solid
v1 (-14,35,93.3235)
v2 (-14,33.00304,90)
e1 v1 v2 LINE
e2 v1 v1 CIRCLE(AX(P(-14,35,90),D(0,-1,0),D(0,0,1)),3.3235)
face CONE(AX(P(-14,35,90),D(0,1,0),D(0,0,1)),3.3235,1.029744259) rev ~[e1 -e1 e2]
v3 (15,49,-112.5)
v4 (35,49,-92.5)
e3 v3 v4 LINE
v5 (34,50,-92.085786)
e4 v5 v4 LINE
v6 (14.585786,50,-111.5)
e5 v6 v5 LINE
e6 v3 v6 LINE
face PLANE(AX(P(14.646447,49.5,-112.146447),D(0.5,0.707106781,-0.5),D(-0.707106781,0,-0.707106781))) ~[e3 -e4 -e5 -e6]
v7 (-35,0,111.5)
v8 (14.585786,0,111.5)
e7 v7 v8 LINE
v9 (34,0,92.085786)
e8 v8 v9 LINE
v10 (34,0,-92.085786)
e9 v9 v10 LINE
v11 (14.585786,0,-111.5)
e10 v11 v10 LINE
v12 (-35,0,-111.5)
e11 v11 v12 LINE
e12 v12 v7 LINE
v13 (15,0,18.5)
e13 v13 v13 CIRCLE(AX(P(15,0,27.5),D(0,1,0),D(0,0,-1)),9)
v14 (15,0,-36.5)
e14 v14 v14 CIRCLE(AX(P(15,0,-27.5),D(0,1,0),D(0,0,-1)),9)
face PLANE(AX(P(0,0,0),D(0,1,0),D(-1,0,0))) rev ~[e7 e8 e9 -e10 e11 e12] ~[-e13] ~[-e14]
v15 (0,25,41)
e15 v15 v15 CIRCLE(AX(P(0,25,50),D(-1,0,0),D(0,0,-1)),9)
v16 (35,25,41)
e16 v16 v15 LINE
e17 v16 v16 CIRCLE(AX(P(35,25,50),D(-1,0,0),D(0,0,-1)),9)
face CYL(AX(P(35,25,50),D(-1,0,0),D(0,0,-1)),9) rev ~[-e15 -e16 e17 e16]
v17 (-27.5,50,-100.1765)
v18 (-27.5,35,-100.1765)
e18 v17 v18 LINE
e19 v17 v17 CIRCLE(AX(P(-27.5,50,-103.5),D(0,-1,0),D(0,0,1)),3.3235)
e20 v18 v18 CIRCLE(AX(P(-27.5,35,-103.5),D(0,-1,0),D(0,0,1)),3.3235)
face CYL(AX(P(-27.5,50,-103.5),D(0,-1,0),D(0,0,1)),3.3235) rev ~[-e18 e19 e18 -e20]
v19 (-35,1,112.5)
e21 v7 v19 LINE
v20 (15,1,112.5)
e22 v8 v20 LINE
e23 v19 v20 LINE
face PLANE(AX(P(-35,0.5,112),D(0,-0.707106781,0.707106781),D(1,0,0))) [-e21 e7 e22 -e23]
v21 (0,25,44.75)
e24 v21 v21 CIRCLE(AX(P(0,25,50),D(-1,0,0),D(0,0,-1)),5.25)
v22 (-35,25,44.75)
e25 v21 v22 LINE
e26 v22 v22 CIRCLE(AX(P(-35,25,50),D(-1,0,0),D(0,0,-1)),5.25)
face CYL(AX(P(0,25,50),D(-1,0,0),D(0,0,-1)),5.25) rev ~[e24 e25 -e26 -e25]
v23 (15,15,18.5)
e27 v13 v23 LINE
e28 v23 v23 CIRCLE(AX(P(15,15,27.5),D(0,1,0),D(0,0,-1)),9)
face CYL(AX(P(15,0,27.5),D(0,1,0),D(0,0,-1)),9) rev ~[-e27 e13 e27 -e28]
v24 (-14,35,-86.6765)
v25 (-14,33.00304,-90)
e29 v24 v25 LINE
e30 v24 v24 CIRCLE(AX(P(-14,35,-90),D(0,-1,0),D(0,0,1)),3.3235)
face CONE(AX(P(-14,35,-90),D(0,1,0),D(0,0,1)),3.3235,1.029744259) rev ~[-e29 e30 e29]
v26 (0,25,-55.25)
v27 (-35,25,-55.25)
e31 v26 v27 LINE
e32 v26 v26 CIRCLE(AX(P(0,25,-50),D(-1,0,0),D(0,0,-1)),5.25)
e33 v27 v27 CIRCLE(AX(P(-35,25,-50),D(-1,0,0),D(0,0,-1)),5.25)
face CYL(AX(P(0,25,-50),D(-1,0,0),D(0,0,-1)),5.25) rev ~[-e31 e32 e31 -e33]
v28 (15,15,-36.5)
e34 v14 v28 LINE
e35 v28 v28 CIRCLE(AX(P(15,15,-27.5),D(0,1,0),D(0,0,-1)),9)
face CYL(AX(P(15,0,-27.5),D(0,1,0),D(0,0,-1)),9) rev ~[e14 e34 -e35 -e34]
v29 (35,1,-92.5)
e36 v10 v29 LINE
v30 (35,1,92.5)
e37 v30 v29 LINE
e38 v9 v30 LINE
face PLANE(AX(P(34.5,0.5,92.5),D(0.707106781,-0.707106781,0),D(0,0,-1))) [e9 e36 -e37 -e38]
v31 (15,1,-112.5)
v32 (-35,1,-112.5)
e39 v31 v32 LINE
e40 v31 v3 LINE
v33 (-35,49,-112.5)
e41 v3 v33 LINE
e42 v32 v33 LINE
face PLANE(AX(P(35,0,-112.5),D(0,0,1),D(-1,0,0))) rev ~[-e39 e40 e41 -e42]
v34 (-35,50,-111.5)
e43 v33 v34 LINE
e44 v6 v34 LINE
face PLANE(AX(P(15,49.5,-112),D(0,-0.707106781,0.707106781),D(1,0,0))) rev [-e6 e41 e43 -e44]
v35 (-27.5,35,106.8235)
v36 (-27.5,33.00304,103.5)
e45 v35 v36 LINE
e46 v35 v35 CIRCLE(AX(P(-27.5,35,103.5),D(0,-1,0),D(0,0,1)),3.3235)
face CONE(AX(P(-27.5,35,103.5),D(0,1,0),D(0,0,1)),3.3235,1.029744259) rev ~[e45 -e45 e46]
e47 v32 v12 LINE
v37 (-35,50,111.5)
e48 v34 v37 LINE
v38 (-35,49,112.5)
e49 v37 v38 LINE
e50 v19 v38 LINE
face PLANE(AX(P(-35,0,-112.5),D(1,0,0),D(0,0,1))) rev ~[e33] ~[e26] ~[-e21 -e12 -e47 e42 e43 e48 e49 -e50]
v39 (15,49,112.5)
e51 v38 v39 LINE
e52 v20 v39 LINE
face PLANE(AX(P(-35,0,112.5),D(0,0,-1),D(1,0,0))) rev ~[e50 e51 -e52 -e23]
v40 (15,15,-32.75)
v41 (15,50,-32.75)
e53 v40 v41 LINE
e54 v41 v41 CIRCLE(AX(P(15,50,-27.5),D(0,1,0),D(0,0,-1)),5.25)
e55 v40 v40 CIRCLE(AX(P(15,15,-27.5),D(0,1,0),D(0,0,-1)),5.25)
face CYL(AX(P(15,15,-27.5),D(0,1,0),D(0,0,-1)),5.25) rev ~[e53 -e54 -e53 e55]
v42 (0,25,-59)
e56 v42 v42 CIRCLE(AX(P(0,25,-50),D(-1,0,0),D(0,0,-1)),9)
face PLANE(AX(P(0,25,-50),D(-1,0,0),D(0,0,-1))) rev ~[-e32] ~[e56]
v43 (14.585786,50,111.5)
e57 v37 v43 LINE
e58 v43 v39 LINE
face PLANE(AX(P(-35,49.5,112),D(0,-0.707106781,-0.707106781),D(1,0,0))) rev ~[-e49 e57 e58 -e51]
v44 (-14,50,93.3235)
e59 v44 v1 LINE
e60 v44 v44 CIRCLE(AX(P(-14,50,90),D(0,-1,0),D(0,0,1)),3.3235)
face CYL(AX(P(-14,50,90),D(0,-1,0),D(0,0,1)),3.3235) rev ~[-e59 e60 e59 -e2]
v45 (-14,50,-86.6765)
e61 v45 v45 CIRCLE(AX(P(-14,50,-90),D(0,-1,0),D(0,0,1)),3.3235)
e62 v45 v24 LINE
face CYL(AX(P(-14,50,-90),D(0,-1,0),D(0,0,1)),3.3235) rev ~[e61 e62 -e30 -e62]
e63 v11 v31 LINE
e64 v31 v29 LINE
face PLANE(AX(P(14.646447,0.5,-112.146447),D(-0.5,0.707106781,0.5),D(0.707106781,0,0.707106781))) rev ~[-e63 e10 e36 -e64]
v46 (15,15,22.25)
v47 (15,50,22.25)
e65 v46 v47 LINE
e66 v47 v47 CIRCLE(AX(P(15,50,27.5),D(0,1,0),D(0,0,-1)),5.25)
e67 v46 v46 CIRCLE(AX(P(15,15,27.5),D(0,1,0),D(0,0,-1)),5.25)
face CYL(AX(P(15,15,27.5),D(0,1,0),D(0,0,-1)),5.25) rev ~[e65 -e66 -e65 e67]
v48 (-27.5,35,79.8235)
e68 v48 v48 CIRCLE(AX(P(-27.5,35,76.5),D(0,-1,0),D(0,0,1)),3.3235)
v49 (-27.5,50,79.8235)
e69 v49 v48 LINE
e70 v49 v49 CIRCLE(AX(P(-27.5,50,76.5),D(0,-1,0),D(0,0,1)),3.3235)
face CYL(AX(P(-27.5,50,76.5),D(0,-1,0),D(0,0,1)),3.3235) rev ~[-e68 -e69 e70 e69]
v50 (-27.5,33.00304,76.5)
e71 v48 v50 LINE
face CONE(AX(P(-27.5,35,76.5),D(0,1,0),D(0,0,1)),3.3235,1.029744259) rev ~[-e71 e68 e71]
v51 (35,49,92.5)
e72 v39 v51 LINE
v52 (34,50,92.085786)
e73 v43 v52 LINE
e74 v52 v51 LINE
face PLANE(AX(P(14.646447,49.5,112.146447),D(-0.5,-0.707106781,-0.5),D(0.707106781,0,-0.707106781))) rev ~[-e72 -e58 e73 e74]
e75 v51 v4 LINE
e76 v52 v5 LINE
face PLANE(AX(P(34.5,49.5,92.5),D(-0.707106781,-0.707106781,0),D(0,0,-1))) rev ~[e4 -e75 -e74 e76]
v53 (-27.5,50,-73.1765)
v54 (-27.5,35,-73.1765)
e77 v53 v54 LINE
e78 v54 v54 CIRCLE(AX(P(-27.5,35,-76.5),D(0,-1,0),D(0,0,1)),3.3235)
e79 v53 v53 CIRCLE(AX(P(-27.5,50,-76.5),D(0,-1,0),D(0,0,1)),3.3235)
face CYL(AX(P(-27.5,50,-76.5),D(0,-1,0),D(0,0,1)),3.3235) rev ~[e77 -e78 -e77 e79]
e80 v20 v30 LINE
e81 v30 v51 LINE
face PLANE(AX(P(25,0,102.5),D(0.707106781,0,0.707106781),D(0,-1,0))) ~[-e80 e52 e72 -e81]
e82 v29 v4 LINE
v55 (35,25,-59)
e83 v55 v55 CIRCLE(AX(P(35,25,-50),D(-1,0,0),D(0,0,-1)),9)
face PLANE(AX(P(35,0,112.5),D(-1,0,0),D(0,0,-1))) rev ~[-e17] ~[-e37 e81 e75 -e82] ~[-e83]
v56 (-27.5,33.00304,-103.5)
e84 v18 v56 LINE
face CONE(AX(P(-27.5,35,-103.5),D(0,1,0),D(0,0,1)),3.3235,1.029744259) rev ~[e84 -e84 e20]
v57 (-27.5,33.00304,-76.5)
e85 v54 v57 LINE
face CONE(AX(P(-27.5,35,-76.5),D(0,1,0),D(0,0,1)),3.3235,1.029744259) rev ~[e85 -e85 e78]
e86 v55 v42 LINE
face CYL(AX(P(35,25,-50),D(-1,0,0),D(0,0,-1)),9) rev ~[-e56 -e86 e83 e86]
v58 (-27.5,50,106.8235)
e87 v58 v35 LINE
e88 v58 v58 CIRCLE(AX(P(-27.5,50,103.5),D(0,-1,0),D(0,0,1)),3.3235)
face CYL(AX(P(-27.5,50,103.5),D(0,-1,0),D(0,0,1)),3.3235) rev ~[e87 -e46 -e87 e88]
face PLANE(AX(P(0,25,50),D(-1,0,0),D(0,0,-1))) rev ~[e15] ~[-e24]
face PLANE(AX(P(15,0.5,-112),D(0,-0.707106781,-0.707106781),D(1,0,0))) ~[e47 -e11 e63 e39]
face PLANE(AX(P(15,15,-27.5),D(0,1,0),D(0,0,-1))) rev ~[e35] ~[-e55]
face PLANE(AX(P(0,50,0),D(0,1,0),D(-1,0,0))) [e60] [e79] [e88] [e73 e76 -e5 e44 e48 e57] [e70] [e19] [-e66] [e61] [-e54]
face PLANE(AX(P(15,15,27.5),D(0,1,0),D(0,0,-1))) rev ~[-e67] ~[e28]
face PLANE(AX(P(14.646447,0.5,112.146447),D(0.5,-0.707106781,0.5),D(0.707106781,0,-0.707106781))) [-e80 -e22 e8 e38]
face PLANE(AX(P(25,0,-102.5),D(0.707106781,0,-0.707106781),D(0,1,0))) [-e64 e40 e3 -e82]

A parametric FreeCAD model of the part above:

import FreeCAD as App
import Part
import Sketcher

V = App.Vector


def edges_at(feature, points):
    """Names of the edges that pass closest to the given points."""
    edges = feature.Shape.Edges
    near = lambda p: min(range(len(edges)), key=lambda i: edges[i].distToShape(Part.Vertex(*p))[0])
    return sorted({f"Edge{near(p) + 1}" for p in points})

doc = App.newDocument("Part")
body = doc.addObject("PartDesign::Body", "Body")

sketch1 = body.newObject("Sketcher::SketchObject", "Sketch")
sketch1.AttachmentSupport = (doc.getObject("XZ_Plane"), [""])
sketch1.MapMode = "FlatFace"
sketch1.addGeometry([
    Part.LineSegment(V(-35, -112, 0), V(-35, 112, 0)),
    Part.LineSegment(V(-35, 112, 0), V(35, 112, 0)),
    Part.LineSegment(V(35, 112, 0), V(35, -112, 0)),
    Part.LineSegment(V(35, -112, 0), V(-35, -112, 0)),
], False)
sketch1.addConstraint([
    Sketcher.Constraint("Coincident", 0, 2, 1, 1),
    Sketcher.Constraint("Coincident", 1, 2, 2, 1),
    Sketcher.Constraint("Coincident", 2, 2, 3, 1),
    Sketcher.Constraint("Coincident", 3, 2, 0, 1),
    Sketcher.Constraint("Vertical", 0),
    Sketcher.Constraint("Horizontal", 1),
    Sketcher.Constraint("Vertical", 2),
    Sketcher.Constraint("Horizontal", 3),
    Sketcher.Constraint("Symmetric", 0, 2, 2, 2, -1, 1),
    Sketcher.Constraint("DistanceX", 1, 1, 1, 2, 70.0),
    Sketcher.Constraint("DistanceY", 0, 1, 0, 2, 225.0),
])
pad1 = body.newObject("PartDesign::Pad", "Pad")
pad1.Profile = sketch1
pad1.Length = 50
pad1.Reversed = True

sketch2 = body.newObject("Sketcher::SketchObject", "Sketch001")
sketch2.AttachmentSupport = (doc.getObject("YZ_Plane"), [""])
sketch2.MapMode = "FlatFace"
sketch2.AttachmentOffset = App.Placement(V(0, 0, 35), App.Rotation())
sketch2.addGeometry([
    Part.Circle(V(25, 50, 0), V(0, 0, 1), 5),
    Part.Circle(V(25, -50, 0), V(0, 0, 1), 5),
], False)
sketch2.addConstraint([
    Sketcher.Constraint("Equal", 0, 1),
    Sketcher.Constraint("Symmetric", 0, 3, 1, 3, -1),
    Sketcher.Constraint("Diameter", 0, 10.5),
    Sketcher.Constraint("DistanceX", -1, 1, 0, 3, 25.0),
    Sketcher.Constraint("DistanceY", -1, 1, 0, 3, 50.0),
])
doc.recompute()
hole = body.newObject("PartDesign::Hole", "Hole")
hole.Profile = sketch2
hole.ThreadType = "None"
hole.Diameter = 10.5
hole.DepthType = "ThroughAll"
hole.HoleCutType = "Counterbore"
hole.HoleCutDiameter = 18
hole.HoleCutDepth = 35

sketch3 = body.newObject("Sketcher::SketchObject", "Sketch002")
sketch3.AttachmentSupport = (doc.getObject("XZ_Plane"), [""])
sketch3.MapMode = "FlatFace"
sketch3.addGeometry([
    Part.Circle(V(15, 28, 0), V(0, 0, 1), 5),
    Part.Circle(V(15, -28, 0), V(0, 0, 1), 5),
], False)
sketch3.addConstraint([
    Sketcher.Constraint("Equal", 0, 1),
    Sketcher.Constraint("Symmetric", 0, 3, 1, 3, -1),
    Sketcher.Constraint("Diameter", 0, 10.5),
    Sketcher.Constraint("DistanceX", -1, 1, 0, 3, 15.0),
    Sketcher.Constraint("DistanceY", 1, 3, 0, 3, 55.0),
])
doc.recompute()
hole2 = body.newObject("PartDesign::Hole", "Hole001")
hole2.Profile = sketch3
hole2.ThreadType = "None"
hole2.Diameter = 10.5
hole2.DepthType = "ThroughAll"
hole2.HoleCutType = "Counterbore"
hole2.HoleCutDiameter = 18
hole2.HoleCutDepth = 15
doc.recompute()

chamfer = body.newObject("PartDesign::Chamfer", "Chamfer")
chamfer.Base = (hole2, edges_at(hole2, [(35, 25, 112.5), (35, 25, -112.5)]))
chamfer.Size = 20

sketch4 = body.newObject("Sketcher::SketchObject", "Sketch003")
sketch4.AttachmentSupport = (doc.getObject("XZ_Plane"), [""])
sketch4.MapMode = "FlatFace"
sketch4.AttachmentOffset = App.Placement(V(0, 0, -50), App.Rotation())
sketch4.addGeometry([
    Part.Circle(V(-27.5, 103.5, 0), V(0, 0, 1), 3.3),
    Part.Circle(V(-14, 90, 0), V(0, 0, 1), 3.3),
    Part.Circle(V(-27.5, 76.5, 0), V(0, 0, 1), 3.3),
    Part.Circle(V(-27.5, -76.5, 0), V(0, 0, 1), 3.3),
    Part.Circle(V(-14, -90, 0), V(0, 0, 1), 3.3),
    Part.Circle(V(-27.5, -103.5, 0), V(0, 0, 1), 3.3),
], False)
sketch4.addConstraint([
    Sketcher.Constraint("Equal", 0, 1),
    Sketcher.Constraint("Equal", 1, 2),
    Sketcher.Constraint("Equal", 2, 3),
    Sketcher.Constraint("Equal", 3, 4),
    Sketcher.Constraint("Equal", 4, 5),
    Sketcher.Constraint("Symmetric", 2, 3, 3, 3, -1),
    Sketcher.Constraint("Symmetric", 1, 3, 4, 3, -1),
    Sketcher.Constraint("Symmetric", 0, 3, 5, 3, -1),
    Sketcher.Constraint("Vertical", 0, 3, 2, 3),
    Sketcher.Constraint("Diameter", 0, 6.647),
    Sketcher.Constraint("DistanceX", 1, 3, -1, 1, 14.0),
    Sketcher.Constraint("DistanceY", -1, 1, 1, 3, 90.0),
    Sketcher.Constraint("DistanceY", 2, 3, 0, 3, 27.0),
    Sketcher.Constraint("DistanceY", 3, 3, 2, 3, 153.0),
    Sketcher.Constraint("DistanceX", 0, 3, -1, 1, 27.5),
])
doc.recompute()
hole3 = body.newObject("PartDesign::Hole", "Hole002")
hole3.Profile = sketch4
hole3.ThreadType = "None"
hole3.Diameter = 6.647
hole3.DepthType = "Dimension"
hole3.Depth = 15
hole3.DrillPoint = "Angled"
hole3.DrillPointAngle = 118
hole3.Reversed = True
doc.recompute()

chamfer2 = body.newObject("PartDesign::Chamfer", "Chamfer001")
chamfer2.Base = (hole3, edges_at(hole3, [
    (-10, 50, 112.5),
    (25, 50, 102.5),
    (35, 50, 0),
    (25, 50, -102.5),
    (-10, 50, -112.5),
    (-10, 0, 112.5),
    (25, 0, 102.5),
    (35, 0, 0),
    (25, 0, -102.5),
    (-10, 0, -112.5),
]))
chamfer2.Size = 1

doc.recompute()
